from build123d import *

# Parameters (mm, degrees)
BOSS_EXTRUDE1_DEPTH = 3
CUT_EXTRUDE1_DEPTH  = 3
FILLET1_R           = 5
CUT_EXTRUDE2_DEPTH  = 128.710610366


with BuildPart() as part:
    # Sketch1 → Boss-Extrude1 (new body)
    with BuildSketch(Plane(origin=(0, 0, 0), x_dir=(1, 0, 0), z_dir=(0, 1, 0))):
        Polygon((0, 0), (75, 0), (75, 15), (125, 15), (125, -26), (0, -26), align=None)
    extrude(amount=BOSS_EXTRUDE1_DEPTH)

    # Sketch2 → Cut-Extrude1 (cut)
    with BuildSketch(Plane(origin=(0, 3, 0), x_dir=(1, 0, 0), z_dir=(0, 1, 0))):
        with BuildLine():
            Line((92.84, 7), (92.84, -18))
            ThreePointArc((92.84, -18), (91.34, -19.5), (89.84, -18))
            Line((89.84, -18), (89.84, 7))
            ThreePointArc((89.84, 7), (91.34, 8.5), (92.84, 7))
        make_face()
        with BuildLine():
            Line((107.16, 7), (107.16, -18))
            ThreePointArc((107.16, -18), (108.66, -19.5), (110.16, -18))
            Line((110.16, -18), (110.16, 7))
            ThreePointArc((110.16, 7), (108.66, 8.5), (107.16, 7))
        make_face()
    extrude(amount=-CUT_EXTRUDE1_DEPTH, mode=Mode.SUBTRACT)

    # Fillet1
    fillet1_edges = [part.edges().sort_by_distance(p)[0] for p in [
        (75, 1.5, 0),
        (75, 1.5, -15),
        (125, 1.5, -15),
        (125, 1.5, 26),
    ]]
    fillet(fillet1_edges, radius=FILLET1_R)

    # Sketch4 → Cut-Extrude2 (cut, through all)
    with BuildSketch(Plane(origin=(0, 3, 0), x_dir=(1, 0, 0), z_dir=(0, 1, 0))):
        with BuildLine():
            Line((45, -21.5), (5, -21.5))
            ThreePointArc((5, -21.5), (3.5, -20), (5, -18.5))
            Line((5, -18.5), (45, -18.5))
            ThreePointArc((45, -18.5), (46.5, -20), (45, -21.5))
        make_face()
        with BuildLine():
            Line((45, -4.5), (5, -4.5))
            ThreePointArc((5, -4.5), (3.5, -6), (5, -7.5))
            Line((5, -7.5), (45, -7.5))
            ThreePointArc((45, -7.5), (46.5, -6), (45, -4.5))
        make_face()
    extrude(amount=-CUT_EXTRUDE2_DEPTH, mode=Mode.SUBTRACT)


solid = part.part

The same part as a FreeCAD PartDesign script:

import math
import FreeCAD as App
import Part
import Sketcher


def edges_at(feature, points):
    """Names of the edges that pass closest to the given points."""
    edges = feature.Shape.Edges
    near = lambda p: min(range(len(edges)), key=lambda i: edges[i].distToShape(Part.Vertex(*p))[0])
    return sorted({f"Edge{near(p) + 1}" for p in points})


def add_polygon(sketch, points):
    """Adds a closed chain of lines whose ends are joined by coincident constraints."""
    first, n = sketch.GeometryCount, len(points)
    for a, b in zip(points, points[1:] + points[:1]):
        sketch.addGeometry(Part.LineSegment(App.Vector(*a, 0), App.Vector(*b, 0)), False)
    for i in range(n):
        sketch.addConstraint(Sketcher.Constraint("Coincident", first + i, 2, first + (i + 1) % n, 1))

doc = App.newDocument("Part")
body = doc.addObject("PartDesign::Body", "Body")

# Sketch on XZ plane
sketch1 = doc.addObject("Sketcher::SketchObject", "Sketch")
body.addObject(sketch1)
sketch1.AttachmentSupport = (doc.XZ_Plane, [""])
sketch1.MapMode = "FlatFace"
add_polygon(sketch1, [(75, 0), (0, 0), (0, 26), (125, 26), (125, -15), (75, -15)])  # lines 0-5
sketch1.addConstraint(Sketcher.Constraint("Horizontal", 0))
sketch1.addConstraint(Sketcher.Constraint("Vertical", 1))
sketch1.addConstraint(Sketcher.Constraint("Horizontal", 2))
sketch1.addConstraint(Sketcher.Constraint("Vertical", 3))
sketch1.addConstraint(Sketcher.Constraint("Horizontal", 4))
sketch1.addConstraint(Sketcher.Constraint("Vertical", 5))
sketch1.addConstraint(Sketcher.Constraint("Coincident", 0, 2, -1, 1))
sketch1.addConstraint(Sketcher.Constraint("DistanceX", 0, 2, 0, 1, 75.0))
sketch1.addConstraint(Sketcher.Constraint("DistanceX", 2, 1, 2, 2, 125.0))
sketch1.addConstraint(Sketcher.Constraint("DistanceY", 1, 1, 1, 2, 26.0))
sketch1.addConstraint(Sketcher.Constraint("DistanceY", 3, 2, 3, 1, 41.0))
pad1 = doc.addObject("PartDesign::Pad", "Pad")
body.addObject(pad1)
pad1.Profile = sketch1
pad1.Length = 3
pad1.Reversed = True

# Sketch on XZ plane
sketch2 = doc.addObject("Sketcher::SketchObject", "Sketch001")
body.addObject(sketch2)
sketch2.AttachmentSupport = (doc.XZ_Plane, [""])
sketch2.MapMode = "FlatFace"
sketch2.AttachmentOffset = App.Placement(App.Vector(0, 0, -3), App.Rotation())
sketch2.addGeometry(Part.LineSegment(App.Vector(92.8, 18, 0), App.Vector(92.8, -7, 0)), False)
sketch2.addGeometry(Part.ArcOfCircle(Part.Circle(App.Vector(91.3, -7, 0), App.Vector(0, 0, 1), 1.5), math.radians(180), math.radians(360)), False)
sketch2.addGeometry(Part.LineSegment(App.Vector(89.8, -7, 0), App.Vector(89.8, 18, 0)), False)
sketch2.addGeometry(Part.ArcOfCircle(Part.Circle(App.Vector(91.3, 18, 0), App.Vector(0, 0, 1), 1.5), math.radians(0), math.radians(180)), False)
sketch2.addGeometry(Part.LineSegment(App.Vector(107.2, -7, 0), App.Vector(107.2, 18, 0)), False)
sketch2.addGeometry(Part.ArcOfCircle(Part.Circle(App.Vector(108.7, 18, 0), App.Vector(0, 0, 1), 1.5), math.radians(0), math.radians(180)), False)
sketch2.addGeometry(Part.LineSegment(App.Vector(110.2, 18, 0), App.Vector(110.2, -7, 0)), False)
sketch2.addGeometry(Part.ArcOfCircle(Part.Circle(App.Vector(108.7, -7, 0), App.Vector(0, 0, 1), 1.5), math.radians(180), math.radians(360)), False)
sketch2.addConstraint(Sketcher.Constraint("Tangent", 0, 2, 1, 2))
sketch2.addConstraint(Sketcher.Constraint("Tangent", 1, 1, 2, 1))
sketch2.addConstraint(Sketcher.Constraint("Tangent", 2, 2, 3, 2))
sketch2.addConstraint(Sketcher.Constraint("Tangent", 3, 1, 0, 1))
sketch2.addConstraint(Sketcher.Constraint("Tangent", 4, 2, 5, 2))
sketch2.addConstraint(Sketcher.Constraint("Tangent", 5, 1, 6, 1))
sketch2.addConstraint(Sketcher.Constraint("Tangent", 6, 2, 7, 2))
sketch2.addConstraint(Sketcher.Constraint("Tangent", 7, 1, 4, 1))
sketch2.addConstraint(Sketcher.Constraint("Vertical", 0))
sketch2.addConstraint(Sketcher.Constraint("Vertical", 2))
sketch2.addConstraint(Sketcher.Constraint("Vertical", 4))
sketch2.addConstraint(Sketcher.Constraint("Vertical", 6))
sketch2.addConstraint(Sketcher.Constraint("Equal", 3, 5))
sketch2.addConstraint(Sketcher.Constraint("Horizontal", 3, 3, 5, 3))
sketch2.addConstraint(Sketcher.Constraint("Horizontal", 1, 3, 7, 3))
sketch2.addConstraint(Sketcher.Constraint("Radius", 1, 1.5))
sketch2.addConstraint(Sketcher.Constraint("DistanceY", 0, 2, 0, 1, 25.0))
sketch2.addConstraint(Sketcher.Constraint("DistanceY", 1, 3, -1, 1, 7.0))
sketch2.addConstraint(Sketcher.Constraint("DistanceX", -1, 1, 1, 3, 91.34))
sketch2.addConstraint(Sketcher.Constraint("DistanceX", -1, 1, 5, 3, 108.66))
pocket1 = doc.addObject("PartDesign::Pocket", "Pocket")
body.addObject(pocket1)
pocket1.Profile = sketch2
pocket1.Length = 3
pocket1.Reversed = True
doc.recompute()

fillet = doc.addObject("PartDesign::Fillet", "Fillet")
body.addObject(fillet)
fillet.Base = (pocket1, edges_at(pocket1, [
    (75, 1.5, 0),
    (75, 1.5, -15),
    (125, 1.5, -15),
    (125, 1.5, 26),
]))
fillet.Radius = 5

# Sketch on XZ plane
sketch3 = doc.addObject("Sketcher::SketchObject", "Sketch002")
body.addObject(sketch3)
sketch3.AttachmentSupport = (doc.XZ_Plane, [""])
sketch3.MapMode = "FlatFace"
sketch3.AttachmentOffset = App.Placement(App.Vector(0, 0, -3), App.Rotation())
sketch3.addGeometry(Part.LineSegment(App.Vector(5, 21.5, 0), App.Vector(45, 21.5, 0)), False)
sketch3.addGeometry(Part.ArcOfCircle(Part.Circle(App.Vector(45, 20, 0), App.Vector(0, 0, 1), 1.5), math.radians(-90), math.radians(90)), False)
sketch3.addGeometry(Part.LineSegment(App.Vector(45, 18.5, 0), App.Vector(5, 18.5, 0)), False)
sketch3.addGeometry(Part.ArcOfCircle(Part.Circle(App.Vector(5, 20, 0), App.Vector(0, 0, 1), 1.5), math.radians(90), math.radians(270)), False)
sketch3.addGeometry(Part.LineSegment(App.Vector(45, 4.5, 0), App.Vector(5, 4.5, 0)), False)
sketch3.addGeometry(Part.ArcOfCircle(Part.Circle(App.Vector(5, 6, 0), App.Vector(0, 0, 1), 1.5), math.radians(90), math.radians(270)), False)
sketch3.addGeometry(Part.LineSegment(App.Vector(5, 7.5, 0), App.Vector(45, 7.5, 0)), False)
sketch3.addGeometry(Part.ArcOfCircle(Part.Circle(App.Vector(45, 6, 0), App.Vector(0, 0, 1), 1.5), math.radians(-90), math.radians(90)), False)
sketch3.addConstraint(Sketcher.Constraint("Tangent", 0, 2, 1, 2))
sketch3.addConstraint(Sketcher.Constraint("Tangent", 1, 1, 2, 1))
sketch3.addConstraint(Sketcher.Constraint("Tangent", 2, 2, 3, 2))
sketch3.addConstraint(Sketcher.Constraint("Tangent", 3, 1, 0, 1))
sketch3.addConstraint(Sketcher.Constraint("Tangent", 4, 2, 5, 2))
sketch3.addConstraint(Sketcher.Constraint("Tangent", 5, 1, 6, 1))
sketch3.addConstraint(Sketcher.Constraint("Tangent", 6, 2, 7, 2))
sketch3.addConstraint(Sketcher.Constraint("Tangent", 7, 1, 4, 1))
sketch3.addConstraint(Sketcher.Constraint("Horizontal", 0))
sketch3.addConstraint(Sketcher.Constraint("Horizontal", 2))
sketch3.addConstraint(Sketcher.Constraint("Horizontal", 4))
sketch3.addConstraint(Sketcher.Constraint("Horizontal", 6))
sketch3.addConstraint(Sketcher.Constraint("Equal", 3, 5))
sketch3.addConstraint(Sketcher.Constraint("Vertical", 3, 3, 5, 3))
sketch3.addConstraint(Sketcher.Constraint("Vertical", 1, 3, 7, 3))
sketch3.addConstraint(Sketcher.Constraint("Radius", 1, 1.5))
sketch3.addConstraint(Sketcher.Constraint("DistanceX", 0, 1, 0, 2, 40.0))
sketch3.addConstraint(Sketcher.Constraint("DistanceX", -1, 1, 1, 3, 45.0))
sketch3.addConstraint(Sketcher.Constraint("DistanceY", -1, 1, 1, 3, 20.0))
sketch3.addConstraint(Sketcher.Constraint("DistanceY", -1, 1, 5, 3, 6.0))
pocket2 = doc.addObject("PartDesign::Pocket", "Pocket001")
body.addObject(pocket2)
pocket2.Profile = sketch3
pocket2.Type = "ThroughAll"
pocket2.Reversed = True

doc.recompute()
